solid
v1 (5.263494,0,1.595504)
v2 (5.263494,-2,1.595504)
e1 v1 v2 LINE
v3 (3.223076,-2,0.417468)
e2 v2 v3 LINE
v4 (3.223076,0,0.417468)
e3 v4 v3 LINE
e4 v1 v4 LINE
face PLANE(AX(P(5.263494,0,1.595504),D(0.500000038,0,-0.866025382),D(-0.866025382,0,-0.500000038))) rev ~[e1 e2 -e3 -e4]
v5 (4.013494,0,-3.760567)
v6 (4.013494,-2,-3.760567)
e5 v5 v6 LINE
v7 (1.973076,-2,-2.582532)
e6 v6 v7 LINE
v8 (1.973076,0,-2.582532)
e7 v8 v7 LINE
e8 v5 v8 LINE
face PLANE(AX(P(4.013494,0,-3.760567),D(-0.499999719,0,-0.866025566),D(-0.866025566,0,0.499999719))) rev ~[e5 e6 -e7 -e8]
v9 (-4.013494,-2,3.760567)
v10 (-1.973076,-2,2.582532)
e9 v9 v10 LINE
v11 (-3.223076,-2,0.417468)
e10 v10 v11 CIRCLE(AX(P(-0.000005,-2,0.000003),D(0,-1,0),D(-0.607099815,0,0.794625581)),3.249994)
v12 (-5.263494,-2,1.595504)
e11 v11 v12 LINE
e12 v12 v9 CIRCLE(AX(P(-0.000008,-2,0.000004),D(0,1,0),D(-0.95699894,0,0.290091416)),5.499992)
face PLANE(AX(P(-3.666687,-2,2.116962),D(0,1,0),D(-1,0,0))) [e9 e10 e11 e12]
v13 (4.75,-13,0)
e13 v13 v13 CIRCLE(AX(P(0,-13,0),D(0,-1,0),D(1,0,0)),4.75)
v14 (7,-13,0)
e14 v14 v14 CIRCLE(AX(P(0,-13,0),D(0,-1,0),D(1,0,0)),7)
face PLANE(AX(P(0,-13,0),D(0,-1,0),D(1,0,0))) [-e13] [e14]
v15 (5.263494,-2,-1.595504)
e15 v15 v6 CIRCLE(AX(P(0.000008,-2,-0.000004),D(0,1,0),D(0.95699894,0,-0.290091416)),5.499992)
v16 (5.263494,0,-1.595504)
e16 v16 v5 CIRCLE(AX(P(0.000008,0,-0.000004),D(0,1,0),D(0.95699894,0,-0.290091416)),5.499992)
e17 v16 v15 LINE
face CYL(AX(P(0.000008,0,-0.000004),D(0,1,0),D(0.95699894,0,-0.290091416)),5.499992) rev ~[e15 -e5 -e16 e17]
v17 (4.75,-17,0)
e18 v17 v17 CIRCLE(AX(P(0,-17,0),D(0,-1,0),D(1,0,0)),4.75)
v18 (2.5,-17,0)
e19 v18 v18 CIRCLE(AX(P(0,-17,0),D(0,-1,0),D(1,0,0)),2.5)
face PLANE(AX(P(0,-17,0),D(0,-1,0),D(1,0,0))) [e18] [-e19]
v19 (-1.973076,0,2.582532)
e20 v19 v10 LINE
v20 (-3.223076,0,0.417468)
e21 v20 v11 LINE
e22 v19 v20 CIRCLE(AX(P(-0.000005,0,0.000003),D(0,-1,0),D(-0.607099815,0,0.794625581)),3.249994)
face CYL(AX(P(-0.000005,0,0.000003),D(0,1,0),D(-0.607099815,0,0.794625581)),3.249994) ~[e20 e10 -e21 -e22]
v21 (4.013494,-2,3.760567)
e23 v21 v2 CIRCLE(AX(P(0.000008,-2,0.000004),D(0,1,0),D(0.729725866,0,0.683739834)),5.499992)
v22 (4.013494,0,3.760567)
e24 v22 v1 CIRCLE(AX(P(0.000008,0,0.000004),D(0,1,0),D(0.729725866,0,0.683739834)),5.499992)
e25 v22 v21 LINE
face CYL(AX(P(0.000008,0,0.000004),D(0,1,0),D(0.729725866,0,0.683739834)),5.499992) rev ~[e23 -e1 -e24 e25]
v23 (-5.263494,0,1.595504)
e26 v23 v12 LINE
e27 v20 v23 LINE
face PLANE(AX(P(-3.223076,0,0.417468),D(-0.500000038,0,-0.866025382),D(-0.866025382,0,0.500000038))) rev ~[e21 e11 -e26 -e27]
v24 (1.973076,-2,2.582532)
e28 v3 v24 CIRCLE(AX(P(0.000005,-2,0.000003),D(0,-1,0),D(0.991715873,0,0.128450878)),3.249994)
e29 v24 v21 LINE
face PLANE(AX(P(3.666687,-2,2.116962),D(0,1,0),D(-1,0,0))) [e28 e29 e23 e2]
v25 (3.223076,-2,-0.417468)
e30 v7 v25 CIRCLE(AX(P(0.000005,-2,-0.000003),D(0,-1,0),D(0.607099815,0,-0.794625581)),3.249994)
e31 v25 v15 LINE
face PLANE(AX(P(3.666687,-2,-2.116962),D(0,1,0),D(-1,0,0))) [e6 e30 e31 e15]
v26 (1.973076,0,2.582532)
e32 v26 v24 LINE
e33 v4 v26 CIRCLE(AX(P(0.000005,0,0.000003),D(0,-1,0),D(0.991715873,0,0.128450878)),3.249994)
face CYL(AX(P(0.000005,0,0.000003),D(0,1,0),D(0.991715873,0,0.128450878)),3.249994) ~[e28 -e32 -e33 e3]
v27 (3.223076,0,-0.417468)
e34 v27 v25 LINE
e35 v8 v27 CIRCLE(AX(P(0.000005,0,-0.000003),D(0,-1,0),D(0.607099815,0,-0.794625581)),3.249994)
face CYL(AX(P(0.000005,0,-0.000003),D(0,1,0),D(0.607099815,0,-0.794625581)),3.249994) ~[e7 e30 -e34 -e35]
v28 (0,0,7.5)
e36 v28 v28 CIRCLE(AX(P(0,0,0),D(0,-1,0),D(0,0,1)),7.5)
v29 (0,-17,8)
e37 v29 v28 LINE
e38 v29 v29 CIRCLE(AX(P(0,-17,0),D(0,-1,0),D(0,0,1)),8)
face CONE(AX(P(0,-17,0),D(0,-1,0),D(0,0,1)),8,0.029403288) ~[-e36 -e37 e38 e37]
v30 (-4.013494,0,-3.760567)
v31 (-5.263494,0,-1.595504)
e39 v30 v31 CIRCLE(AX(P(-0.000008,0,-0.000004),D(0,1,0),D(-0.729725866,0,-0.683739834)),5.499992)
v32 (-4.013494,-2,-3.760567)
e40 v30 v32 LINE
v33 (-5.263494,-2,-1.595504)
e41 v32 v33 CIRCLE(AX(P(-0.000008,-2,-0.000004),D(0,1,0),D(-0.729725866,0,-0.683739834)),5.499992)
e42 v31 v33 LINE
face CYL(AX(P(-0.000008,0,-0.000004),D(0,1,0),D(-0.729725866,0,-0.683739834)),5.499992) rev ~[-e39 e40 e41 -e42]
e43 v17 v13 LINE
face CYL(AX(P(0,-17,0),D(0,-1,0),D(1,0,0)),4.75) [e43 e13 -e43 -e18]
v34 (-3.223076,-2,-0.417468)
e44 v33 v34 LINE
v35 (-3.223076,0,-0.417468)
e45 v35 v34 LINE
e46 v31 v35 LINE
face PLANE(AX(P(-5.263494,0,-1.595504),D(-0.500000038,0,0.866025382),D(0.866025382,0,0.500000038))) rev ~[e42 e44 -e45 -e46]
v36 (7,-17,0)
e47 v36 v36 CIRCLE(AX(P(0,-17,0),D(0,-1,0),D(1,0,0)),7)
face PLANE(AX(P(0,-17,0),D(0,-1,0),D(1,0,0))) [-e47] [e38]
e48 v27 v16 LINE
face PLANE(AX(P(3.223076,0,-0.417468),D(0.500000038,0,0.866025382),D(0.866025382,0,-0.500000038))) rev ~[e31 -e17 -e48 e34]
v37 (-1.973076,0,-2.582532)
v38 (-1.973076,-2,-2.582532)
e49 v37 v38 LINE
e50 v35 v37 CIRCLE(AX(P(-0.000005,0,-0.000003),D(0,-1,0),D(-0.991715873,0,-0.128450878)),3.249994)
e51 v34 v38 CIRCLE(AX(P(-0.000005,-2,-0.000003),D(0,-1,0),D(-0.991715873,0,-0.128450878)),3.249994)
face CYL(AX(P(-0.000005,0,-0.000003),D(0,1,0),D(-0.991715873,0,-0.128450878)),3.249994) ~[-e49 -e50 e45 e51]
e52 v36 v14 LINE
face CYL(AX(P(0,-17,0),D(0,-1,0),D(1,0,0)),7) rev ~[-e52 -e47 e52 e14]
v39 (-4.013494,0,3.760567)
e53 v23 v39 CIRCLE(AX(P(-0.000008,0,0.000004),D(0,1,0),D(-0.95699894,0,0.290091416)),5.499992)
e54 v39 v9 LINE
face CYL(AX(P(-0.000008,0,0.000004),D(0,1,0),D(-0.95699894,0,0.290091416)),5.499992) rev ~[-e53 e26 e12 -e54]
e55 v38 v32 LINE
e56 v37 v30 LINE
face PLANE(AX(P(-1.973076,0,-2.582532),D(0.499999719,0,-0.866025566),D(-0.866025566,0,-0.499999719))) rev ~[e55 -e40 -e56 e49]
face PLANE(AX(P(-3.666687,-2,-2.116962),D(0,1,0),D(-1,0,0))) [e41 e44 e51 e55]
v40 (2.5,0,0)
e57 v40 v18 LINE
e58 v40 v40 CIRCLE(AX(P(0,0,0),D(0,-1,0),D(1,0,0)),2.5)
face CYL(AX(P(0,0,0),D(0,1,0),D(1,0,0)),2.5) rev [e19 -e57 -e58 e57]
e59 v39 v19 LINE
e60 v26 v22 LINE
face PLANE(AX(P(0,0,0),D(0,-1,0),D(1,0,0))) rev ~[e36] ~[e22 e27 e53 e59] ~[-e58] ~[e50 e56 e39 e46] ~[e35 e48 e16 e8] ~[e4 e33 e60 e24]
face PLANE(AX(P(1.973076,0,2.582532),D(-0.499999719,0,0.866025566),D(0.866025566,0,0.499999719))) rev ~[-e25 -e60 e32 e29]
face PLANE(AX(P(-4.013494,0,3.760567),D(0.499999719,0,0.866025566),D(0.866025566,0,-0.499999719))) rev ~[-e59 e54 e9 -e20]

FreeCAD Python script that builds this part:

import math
import FreeCAD as App
import Part
import Sketcher

V = App.Vector
Q = App.Units.Quantity

doc = App.newDocument("Part")
body = doc.addObject("PartDesign::Body", "Body")

sketch1 = body.newObject("Sketcher::SketchObject", "Sketch")
sketch1.AttachmentSupport = (doc.getObject("XZ_Plane"), [""])
sketch1.MapMode = "FlatFace"
sketch1.addGeometry([
    Part.Circle(V(0, 0, 0), V(0, 0, 1), 8),
    Part.Circle(V(0, 0, 0), V(0, 0, 1), 2.5),
], False)
sketch1.addConstraint([
    Sketcher.Constraint("Coincident", 0, 3, -1, 1),
    Sketcher.Constraint("Coincident", 1, 3, -1, 1),
    Sketcher.Constraint("Diameter", 0, Q("16 mm")),
    Sketcher.Constraint("Diameter", 1, Q("5 mm")),
])
pad1 = body.newObject("PartDesign::Pad", "Pad")
pad1.Profile = sketch1
pad1.Length = 17

sketch2 = body.newObject("Sketcher::SketchObject", "Sketch001")
sketch2.AttachmentSupport = (doc.getObject("XZ_Plane"), [""])
sketch2.MapMode = "FlatFace"
sketch2.AttachmentOffset = App.Placement(V(0, 0, 17), App.Rotation())
sketch2.addGeometry([
    Part.Circle(V(0, 0, 0), V(0, 0, 1), 7),
    Part.Circle(V(0, 0, 0), V(0, 0, 1), 4.8),
], False)
sketch2.addConstraint([
    Sketcher.Constraint("Coincident", 0, 3, -1, 1),
    Sketcher.Constraint("Coincident", 1, 3, -1, 1),
    Sketcher.Constraint("Diameter", 0, Q("14 mm")),
    Sketcher.Constraint("Diameter", 1, Q("9.5 mm")),
])
pocket1 = body.newObject("PartDesign::Pocket", "Pocket")
pocket1.Profile = sketch2
pocket1.Length = 4

sketch3 = body.newObject("Sketcher::SketchObject", "Sketch002")
sketch3.AttachmentSupport = (doc.getObject("XZ_Plane"), [""])
sketch3.MapMode = "FlatFace"
sketch3.addGeometry([
    Part.ArcOfCircle(Part.Circle(V(0, 0, 0), V(0, 0, 1), 3.2), math.radians(7), math.radians(53)),
    Part.LineSegment(V(2, 2.6, 0), V(4, 3.8, 0)),
    Part.ArcOfCircle(Part.Circle(V(0, 0, 0), V(0, 0, 1), 5.5), math.radians(17), math.radians(43)),
    Part.LineSegment(V(5.3, 1.6, 0), V(3.2, 0.4, 0)),
    Part.LineSegment(V(3.2, -0.4, 0), V(5.3, -1.6, 0)),
    Part.ArcOfCircle(Part.Circle(V(0, 0, 0), V(0, 0, 1), 5.5), math.radians(-43), math.radians(-17)),
    Part.LineSegment(V(4, -3.8, 0), V(2, -2.6, 0)),
    Part.ArcOfCircle(Part.Circle(V(0, 0, 0), V(0, 0, 1), 3.2), math.radians(-53), math.radians(-7)),
    Part.LineSegment(V(-2, -2.6, 0), V(-4, -3.8, 0)),
    Part.ArcOfCircle(Part.Circle(V(0, 0, 0), V(0, 0, 1), 5.5), math.radians(-163), math.radians(-137)),
    Part.LineSegment(V(-5.3, -1.6, 0), V(-3.2, -0.4, 0)),
    Part.ArcOfCircle(Part.Circle(V(0, 0, 0), V(0, 0, 1), 3.2), math.radians(-173), math.radians(-127)),
    Part.LineSegment(V(-3.2, 0.4, 0), V(-5.3, 1.6, 0)),
    Part.ArcOfCircle(Part.Circle(V(0, 0, 0), V(0, 0, 1), 5.5), math.radians(137), math.radians(163)),
    Part.LineSegment(V(-4, 3.8, 0), V(-2, 2.6, 0)),
    Part.ArcOfCircle(Part.Circle(V(0, 0, 0), V(0, 0, 1), 3.2), math.radians(127), math.radians(173)),
], False)
sketch3.addConstraint([
    Sketcher.Constraint("Coincident", 0, 2, 1, 1),
    Sketcher.Constraint("Coincident", 1, 2, 2, 2),
    Sketcher.Constraint("Coincident", 2, 1, 3, 1),
    Sketcher.Constraint("Coincident", 3, 2, 0, 1),
    Sketcher.Constraint("Coincident", 4, 2, 5, 2),
    Sketcher.Constraint("Coincident", 5, 1, 6, 1),
    Sketcher.Constraint("Coincident", 6, 2, 7, 1),
    Sketcher.Constraint("Coincident", 7, 2, 4, 1),
    Sketcher.Constraint("Coincident", 8, 2, 9, 2),
    Sketcher.Constraint("Coincident", 9, 1, 10, 1),
    Sketcher.Constraint("Coincident", 10, 2, 11, 1),
    Sketcher.Constraint("Coincident", 11, 2, 8, 1),
    Sketcher.Constraint("Coincident", 12, 2, 13, 2),
    Sketcher.Constraint("Coincident", 13, 1, 14, 1),
    Sketcher.Constraint("Coincident", 14, 2, 15, 1),
    Sketcher.Constraint("Coincident", 15, 2, 12, 1),
    Sketcher.Constraint("Coincident", 0, 3, -1, 1),
    Sketcher.Constraint("Coincident", 2, 3, -1, 1),
    Sketcher.Constraint("Coincident", 5, 3, -1, 1),
    Sketcher.Constraint("Coincident", 7, 3, -1, 1),
    Sketcher.Constraint("Coincident", 9, 3, -1, 1),
    Sketcher.Constraint("Coincident", 11, 3, -1, 1),
    Sketcher.Constraint("Coincident", 13, 3, -1, 1),
    Sketcher.Constraint("Coincident", 15, 3, -1, 1),
    Sketcher.Constraint("Equal", 2, 5),
    Sketcher.Constraint("Equal", 0, 7),
    Sketcher.Constraint("Equal", 5, 9),
    Sketcher.Constraint("Equal", 7, 11),
    Sketcher.Constraint("Equal", 9, 13),
    Sketcher.Constraint("Equal", 11, 15),
    Sketcher.Constraint("Parallel", 1, 3),
    Sketcher.Constraint("Parallel", 4, 6),
    Sketcher.Constraint("Parallel", 3, 8),
    Sketcher.Constraint("Parallel", 8, 10),
    Sketcher.Constraint("Parallel", 6, 12),
    Sketcher.Constraint("Parallel", 12, 14),
    Sketcher.Constraint("Horizontal", 5, 1, 8, 2),
    Sketcher.Constraint("Horizontal", 4, 2, 9, 1),
    Sketcher.Constraint("Horizontal", 7, 2, 10, 2),
    Sketcher.Constraint("Horizontal", 2, 1, 12, 2),
    Sketcher.Constraint("Horizontal", 1, 2, 13, 1),
    Sketcher.Constraint("Vertical", 2, 1, 4, 2),
    Sketcher.Constraint("Vertical", 1, 2, 5, 1),
    Sketcher.Constraint("Equal", 1, 3),
    Sketcher.Constraint("Angle", 1, Q("29.999981 deg")),
    Sketcher.Constraint("Radius", 2, Q("5.499992 mm")),
    Sketcher.Constraint("DistanceX", 1, 2, 2, 1, Q("1.25 mm")),
    Sketcher.Constraint("Radius", 0, Q("3.249994 mm")),
])
pocket2 = body.newObject("PartDesign::Pocket", "Pocket001")
pocket2.Profile = sketch3
pocket2.Length = 2
pocket2.Reversed = True

sketch4 = body.newObject("Sketcher::SketchObject", "Sketch003")
sketch4.AttachmentSupport = (doc.getObject("YZ_Plane"), [""])
sketch4.MapMode = "FlatFace"
sketch4.addGeometry([
    Part.LineSegment(V(0, 8, 0), V(-17, 8, 0)),
    Part.LineSegment(V(-17, 8, 0), V(0, 7.5, 0)),
    Part.LineSegment(V(0, 7.5, 0), V(0, 8, 0)),
], False)
sketch4.addConstraint([
    Sketcher.Constraint("Coincident", 0, 2, 1, 1),
    Sketcher.Constraint("Coincident", 1, 2, 2, 1),
    Sketcher.Constraint("Coincident", 2, 2, 0, 1),
    Sketcher.Constraint("Horizontal", 0),
    Sketcher.Constraint("Vertical", 2),
    Sketcher.Constraint("PointOnObject", 1, 2, -2),
    Sketcher.Constraint("DistanceX", 0, 2, 0, 1, Q("17 mm")),
    Sketcher.Constraint("DistanceY", 2, 1, 2, 2, Q("0.5 mm")),
    Sketcher.Constraint("DistanceY", -1, 1, 0, 2, Q("8 mm")),
])
groove = body.newObject("PartDesign::Groove", "Groove")
groove.Profile = sketch4
groove.ReferenceAxis = (sketch4, ["H_Axis"])
groove.Angle = 360

doc.recompute()
